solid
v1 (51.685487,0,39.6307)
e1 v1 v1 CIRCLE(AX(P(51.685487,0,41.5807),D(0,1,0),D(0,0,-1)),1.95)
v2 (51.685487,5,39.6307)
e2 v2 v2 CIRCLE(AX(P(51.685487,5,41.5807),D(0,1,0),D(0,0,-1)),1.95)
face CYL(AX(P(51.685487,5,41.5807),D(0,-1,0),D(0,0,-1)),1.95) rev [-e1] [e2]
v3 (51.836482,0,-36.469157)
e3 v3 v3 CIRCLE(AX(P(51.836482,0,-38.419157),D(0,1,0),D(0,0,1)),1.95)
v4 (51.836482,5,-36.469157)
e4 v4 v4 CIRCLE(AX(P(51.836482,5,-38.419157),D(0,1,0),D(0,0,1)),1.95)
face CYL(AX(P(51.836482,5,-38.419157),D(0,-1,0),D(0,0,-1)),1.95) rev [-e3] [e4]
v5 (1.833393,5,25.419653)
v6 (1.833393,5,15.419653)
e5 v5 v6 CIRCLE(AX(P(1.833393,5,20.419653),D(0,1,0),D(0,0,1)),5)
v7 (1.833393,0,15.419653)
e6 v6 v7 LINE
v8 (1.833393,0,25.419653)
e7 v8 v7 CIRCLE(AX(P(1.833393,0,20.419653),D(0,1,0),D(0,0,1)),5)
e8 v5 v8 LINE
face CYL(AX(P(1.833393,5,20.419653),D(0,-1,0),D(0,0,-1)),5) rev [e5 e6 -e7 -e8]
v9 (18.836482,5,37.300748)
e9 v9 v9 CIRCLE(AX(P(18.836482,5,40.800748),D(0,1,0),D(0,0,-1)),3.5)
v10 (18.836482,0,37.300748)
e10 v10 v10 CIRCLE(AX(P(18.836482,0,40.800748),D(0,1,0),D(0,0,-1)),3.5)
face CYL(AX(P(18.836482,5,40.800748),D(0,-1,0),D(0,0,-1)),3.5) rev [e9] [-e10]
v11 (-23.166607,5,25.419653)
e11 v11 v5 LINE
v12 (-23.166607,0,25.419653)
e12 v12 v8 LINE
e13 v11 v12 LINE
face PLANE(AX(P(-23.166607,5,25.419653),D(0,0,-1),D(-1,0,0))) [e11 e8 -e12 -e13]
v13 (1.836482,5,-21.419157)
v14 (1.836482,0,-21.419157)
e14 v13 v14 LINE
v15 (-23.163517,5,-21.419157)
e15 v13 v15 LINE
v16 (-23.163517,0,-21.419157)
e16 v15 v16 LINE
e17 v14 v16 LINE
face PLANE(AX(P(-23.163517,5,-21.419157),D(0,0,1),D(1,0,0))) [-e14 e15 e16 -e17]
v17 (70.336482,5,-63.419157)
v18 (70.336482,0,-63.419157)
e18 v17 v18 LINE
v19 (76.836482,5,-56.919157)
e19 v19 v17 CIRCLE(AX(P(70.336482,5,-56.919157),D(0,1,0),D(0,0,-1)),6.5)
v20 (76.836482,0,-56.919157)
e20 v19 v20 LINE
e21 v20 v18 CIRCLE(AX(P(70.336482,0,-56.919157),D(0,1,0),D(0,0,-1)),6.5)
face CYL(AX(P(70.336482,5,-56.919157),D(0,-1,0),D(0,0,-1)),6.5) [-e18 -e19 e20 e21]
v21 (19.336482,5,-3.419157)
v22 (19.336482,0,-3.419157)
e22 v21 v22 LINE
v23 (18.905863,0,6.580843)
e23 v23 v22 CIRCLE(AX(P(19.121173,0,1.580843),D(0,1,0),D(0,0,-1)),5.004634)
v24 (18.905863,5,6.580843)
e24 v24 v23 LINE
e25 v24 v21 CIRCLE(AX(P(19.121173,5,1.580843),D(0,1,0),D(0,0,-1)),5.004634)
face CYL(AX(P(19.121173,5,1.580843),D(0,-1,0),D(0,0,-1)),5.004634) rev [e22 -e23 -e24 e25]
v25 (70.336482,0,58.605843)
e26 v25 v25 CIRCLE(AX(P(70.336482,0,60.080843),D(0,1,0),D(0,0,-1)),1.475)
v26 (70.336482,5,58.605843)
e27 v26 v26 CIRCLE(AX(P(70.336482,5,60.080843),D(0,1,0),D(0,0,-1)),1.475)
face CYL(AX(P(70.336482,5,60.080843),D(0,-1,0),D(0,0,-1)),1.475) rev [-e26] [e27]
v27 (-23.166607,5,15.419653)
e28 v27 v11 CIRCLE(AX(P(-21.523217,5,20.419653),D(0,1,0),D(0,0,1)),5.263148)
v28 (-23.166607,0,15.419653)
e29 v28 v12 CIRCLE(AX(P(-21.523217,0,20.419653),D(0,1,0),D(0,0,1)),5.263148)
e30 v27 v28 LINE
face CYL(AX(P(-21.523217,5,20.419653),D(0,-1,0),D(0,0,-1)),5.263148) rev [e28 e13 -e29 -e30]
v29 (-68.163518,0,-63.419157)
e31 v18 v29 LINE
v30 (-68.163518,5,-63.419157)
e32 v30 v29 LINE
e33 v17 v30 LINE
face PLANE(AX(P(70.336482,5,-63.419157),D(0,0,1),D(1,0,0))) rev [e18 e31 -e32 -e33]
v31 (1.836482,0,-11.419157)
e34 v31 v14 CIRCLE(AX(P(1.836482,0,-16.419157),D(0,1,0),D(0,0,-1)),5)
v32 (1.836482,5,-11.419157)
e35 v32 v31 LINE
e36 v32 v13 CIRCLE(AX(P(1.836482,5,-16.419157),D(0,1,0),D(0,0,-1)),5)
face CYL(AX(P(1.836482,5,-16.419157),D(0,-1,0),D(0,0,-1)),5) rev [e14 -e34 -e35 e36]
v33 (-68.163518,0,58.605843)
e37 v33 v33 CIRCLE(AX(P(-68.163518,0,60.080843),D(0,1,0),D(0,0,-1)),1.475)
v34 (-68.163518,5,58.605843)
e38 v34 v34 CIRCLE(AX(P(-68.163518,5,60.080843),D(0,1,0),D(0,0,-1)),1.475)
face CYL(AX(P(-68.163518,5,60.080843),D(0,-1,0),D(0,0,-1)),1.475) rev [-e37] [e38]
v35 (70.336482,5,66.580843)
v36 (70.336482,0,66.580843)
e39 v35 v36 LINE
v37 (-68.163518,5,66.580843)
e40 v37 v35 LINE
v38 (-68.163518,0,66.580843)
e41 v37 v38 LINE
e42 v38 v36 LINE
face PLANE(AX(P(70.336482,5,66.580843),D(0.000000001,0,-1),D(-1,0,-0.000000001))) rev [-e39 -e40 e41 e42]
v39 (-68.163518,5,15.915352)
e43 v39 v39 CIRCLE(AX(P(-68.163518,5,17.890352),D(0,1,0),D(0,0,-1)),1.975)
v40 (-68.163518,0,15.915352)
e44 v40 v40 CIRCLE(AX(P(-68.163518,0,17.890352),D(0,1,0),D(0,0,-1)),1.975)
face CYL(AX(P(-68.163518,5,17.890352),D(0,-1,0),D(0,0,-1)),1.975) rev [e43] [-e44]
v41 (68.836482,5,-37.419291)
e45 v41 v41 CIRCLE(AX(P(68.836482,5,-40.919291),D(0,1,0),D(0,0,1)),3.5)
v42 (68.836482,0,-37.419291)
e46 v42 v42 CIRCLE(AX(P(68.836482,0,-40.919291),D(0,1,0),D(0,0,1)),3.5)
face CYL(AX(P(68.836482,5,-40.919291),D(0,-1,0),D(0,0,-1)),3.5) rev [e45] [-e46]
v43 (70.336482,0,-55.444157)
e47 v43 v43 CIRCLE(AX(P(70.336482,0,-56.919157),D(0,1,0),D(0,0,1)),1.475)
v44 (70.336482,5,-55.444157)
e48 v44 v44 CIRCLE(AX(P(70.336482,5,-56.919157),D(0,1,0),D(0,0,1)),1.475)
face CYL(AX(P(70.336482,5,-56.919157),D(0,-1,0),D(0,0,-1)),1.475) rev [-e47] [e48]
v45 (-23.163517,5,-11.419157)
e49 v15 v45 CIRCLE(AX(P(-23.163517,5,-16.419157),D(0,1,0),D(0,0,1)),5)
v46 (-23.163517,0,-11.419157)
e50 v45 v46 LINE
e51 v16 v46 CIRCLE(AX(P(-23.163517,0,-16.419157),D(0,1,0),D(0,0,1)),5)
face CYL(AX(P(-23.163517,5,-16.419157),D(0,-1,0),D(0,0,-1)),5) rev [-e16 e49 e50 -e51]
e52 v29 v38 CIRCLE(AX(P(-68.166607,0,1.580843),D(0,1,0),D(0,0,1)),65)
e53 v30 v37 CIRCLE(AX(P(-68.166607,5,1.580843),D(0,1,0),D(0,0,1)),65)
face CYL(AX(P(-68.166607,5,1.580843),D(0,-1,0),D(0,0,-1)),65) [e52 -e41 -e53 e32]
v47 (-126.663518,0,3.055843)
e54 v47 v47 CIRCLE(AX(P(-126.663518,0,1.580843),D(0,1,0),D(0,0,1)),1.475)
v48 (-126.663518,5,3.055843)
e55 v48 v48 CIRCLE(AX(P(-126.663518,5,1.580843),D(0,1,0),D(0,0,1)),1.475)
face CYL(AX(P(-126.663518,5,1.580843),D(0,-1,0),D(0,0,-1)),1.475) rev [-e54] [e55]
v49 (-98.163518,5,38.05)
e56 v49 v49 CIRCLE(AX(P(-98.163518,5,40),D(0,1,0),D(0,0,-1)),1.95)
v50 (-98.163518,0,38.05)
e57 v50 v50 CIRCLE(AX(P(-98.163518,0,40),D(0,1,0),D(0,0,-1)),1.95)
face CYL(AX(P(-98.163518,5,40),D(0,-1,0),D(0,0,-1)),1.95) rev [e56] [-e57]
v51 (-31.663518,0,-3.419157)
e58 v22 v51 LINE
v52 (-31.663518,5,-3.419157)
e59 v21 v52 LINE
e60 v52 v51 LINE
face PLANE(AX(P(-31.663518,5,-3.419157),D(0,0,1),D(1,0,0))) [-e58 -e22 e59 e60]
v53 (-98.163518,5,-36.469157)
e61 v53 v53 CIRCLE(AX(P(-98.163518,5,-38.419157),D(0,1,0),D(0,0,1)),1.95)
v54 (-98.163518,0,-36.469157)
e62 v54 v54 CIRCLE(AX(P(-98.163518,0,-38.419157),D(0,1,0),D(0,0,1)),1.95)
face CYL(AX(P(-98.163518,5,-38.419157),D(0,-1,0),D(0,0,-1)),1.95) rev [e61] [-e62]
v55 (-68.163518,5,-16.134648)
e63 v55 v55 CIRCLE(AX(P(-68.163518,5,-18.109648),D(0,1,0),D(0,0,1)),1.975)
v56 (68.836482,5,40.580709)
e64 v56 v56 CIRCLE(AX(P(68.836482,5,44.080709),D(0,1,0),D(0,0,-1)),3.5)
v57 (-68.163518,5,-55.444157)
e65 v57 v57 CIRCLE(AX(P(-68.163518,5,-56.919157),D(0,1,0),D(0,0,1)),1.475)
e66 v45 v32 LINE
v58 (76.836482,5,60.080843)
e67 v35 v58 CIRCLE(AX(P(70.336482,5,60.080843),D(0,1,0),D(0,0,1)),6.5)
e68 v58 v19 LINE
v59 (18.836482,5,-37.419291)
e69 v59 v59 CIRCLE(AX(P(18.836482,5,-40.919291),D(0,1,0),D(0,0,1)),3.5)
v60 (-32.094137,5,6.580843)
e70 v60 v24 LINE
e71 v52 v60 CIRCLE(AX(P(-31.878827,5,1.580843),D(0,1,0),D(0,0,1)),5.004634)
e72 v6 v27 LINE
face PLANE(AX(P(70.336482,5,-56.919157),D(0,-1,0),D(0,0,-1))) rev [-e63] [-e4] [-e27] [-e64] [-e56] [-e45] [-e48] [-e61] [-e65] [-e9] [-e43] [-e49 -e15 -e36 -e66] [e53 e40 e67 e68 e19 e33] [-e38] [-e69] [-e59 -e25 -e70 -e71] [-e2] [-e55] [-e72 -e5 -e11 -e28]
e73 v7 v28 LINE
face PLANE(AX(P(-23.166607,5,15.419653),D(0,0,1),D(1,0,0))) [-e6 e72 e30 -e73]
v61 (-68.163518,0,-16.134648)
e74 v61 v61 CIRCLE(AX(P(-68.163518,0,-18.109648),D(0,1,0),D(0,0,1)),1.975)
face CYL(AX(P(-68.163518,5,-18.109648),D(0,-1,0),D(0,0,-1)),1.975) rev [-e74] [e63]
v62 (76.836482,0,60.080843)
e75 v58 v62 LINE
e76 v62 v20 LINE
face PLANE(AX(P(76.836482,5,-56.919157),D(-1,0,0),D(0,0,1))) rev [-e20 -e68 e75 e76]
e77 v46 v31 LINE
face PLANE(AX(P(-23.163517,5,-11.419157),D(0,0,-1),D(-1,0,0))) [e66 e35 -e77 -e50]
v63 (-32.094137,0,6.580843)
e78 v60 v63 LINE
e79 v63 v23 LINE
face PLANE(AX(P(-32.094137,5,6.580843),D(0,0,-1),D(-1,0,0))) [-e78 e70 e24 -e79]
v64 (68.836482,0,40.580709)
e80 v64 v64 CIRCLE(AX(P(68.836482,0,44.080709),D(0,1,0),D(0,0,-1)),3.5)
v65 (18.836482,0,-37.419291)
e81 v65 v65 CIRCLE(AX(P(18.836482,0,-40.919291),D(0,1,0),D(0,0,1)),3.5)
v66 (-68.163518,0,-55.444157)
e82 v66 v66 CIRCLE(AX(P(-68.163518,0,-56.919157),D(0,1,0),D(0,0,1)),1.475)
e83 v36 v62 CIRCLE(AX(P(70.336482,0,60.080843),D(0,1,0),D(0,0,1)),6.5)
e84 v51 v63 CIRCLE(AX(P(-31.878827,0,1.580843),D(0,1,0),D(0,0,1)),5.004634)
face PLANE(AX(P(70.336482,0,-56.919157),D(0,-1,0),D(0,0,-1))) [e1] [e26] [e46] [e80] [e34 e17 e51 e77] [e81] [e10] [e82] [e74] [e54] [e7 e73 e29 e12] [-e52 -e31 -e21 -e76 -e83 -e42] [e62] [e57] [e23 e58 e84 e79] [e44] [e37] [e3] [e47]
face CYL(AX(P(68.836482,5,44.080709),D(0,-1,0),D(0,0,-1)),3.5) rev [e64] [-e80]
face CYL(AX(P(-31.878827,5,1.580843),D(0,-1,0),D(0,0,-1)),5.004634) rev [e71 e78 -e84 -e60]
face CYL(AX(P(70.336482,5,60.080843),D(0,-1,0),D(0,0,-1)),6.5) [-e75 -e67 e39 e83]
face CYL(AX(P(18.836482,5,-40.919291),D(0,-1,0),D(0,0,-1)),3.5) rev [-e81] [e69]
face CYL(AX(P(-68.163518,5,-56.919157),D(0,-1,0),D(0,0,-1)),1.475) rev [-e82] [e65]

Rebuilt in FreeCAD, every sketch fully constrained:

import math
import FreeCAD as App
import Part
import Sketcher
Q = App.Units.Quantity

doc = App.newDocument("Part")
params = doc.addObject("Spreadsheet::Sheet", "Params")
for row, (alias, value) in enumerate([
    ("sketch1_diameter", "7 mm"),
    ("sketch1_radius", "65 mm"),
    ("sketch1_radius2", "5 mm"),
    ("sketch1_diameter2", "3.9 mm"),
    ("sketch1_radius3", "6.5 mm"),
    ("pad1_length", "5 mm"),
], start=1):
    params.set(f"A{row}", alias)
    params.set(f"B{row}", "=" + value)
    params.setAlias(f"B{row}", alias)

body = doc.addObject("PartDesign::Body", "Body")

sketch1 = doc.addObject("Sketcher::SketchObject", "Sketch")
body.addObject(sketch1)
sketch1.AttachmentSupport = (doc.XZ_Plane, [""])
sketch1.MapMode = "FlatFace"
sketch1.addGeometry([
    Part.LineSegment(App.Vector(76.8, 60.1, 0), App.Vector(76.8, -56.9, 0)),
    Part.ArcOfCircle(Part.Circle(App.Vector(70.3, -56.9, 0), App.Vector(0, 0, 1), 6.5), math.radians(-90), math.radians(0)),
    Part.LineSegment(App.Vector(70.3, -63.4, 0), App.Vector(-68.2, -63.4, 0)),
    Part.ArcOfCircle(Part.Circle(App.Vector(-68.2, 1.6, 0), App.Vector(0, 0, 1), 65), math.radians(90), math.radians(270)),
    Part.LineSegment(App.Vector(-68.2, 66.6, 0), App.Vector(70.3, 66.6, 0)),
    Part.ArcOfCircle(Part.Circle(App.Vector(70.3, 60.1, 0), App.Vector(0, 0, 1), 6.5), math.radians(0), math.radians(90)),
    Part.Circle(App.Vector(70.3, 60.1, 0), App.Vector(0, 0, 1), 1.5),
    Part.Circle(App.Vector(68.8, 44.1, 0), App.Vector(0, 0, 1), 3.5),
    Part.Circle(App.Vector(51.7, 41.6, 0), App.Vector(0, 0, 1), 1.9),
    Part.Circle(App.Vector(18.8, 40.8, 0), App.Vector(0, 0, 1), 3.5),
    Part.ArcOfCircle(Part.Circle(App.Vector(-21.5, 20.4, 0), App.Vector(0, 0, 1), 5.3), math.radians(108), math.radians(252)),
    Part.LineSegment(App.Vector(-23.2, 15.4, 0), App.Vector(1.8, 15.4, 0)),
    Part.ArcOfCircle(Part.Circle(App.Vector(1.8, 20.4, 0), App.Vector(0, 0, 1), 5), math.radians(-90), math.radians(90)),
    Part.LineSegment(App.Vector(1.8, 25.4, 0), App.Vector(-23.2, 25.4, 0)),
    Part.Circle(App.Vector(-68.2, 60.1, 0), App.Vector(0, 0, 1), 1.5),
    Part.Circle(App.Vector(-98.2, 40, 0), App.Vector(0, 0, 1), 1.9),
    Part.Circle(App.Vector(-68.2, 17.9, 0), App.Vector(0, 0, 1), 2),
    Part.LineSegment(App.Vector(-31.7, -3.4, 0), App.Vector(19.3, -3.4, 0)),
    Part.ArcOfCircle(Part.Circle(App.Vector(19.1, 1.6, 0), App.Vector(0, 0, 1), 5), math.radians(-88), math.radians(92)),
    Part.LineSegment(App.Vector(18.9, 6.6, 0), App.Vector(-32.1, 6.6, 0)),
    Part.ArcOfCircle(Part.Circle(App.Vector(-31.9, 1.6, 0), App.Vector(0, 0, 1), 5), math.radians(92), math.radians(272)),
    Part.LineSegment(App.Vector(-23.2, -21.4, 0), App.Vector(1.8, -21.4, 0)),
    Part.ArcOfCircle(Part.Circle(App.Vector(1.8, -16.4, 0), App.Vector(0, 0, 1), 5), math.radians(-90), math.radians(90)),
    Part.LineSegment(App.Vector(1.8, -11.4, 0), App.Vector(-23.2, -11.4, 0)),
    Part.ArcOfCircle(Part.Circle(App.Vector(-23.2, -16.4, 0), App.Vector(0, 0, 1), 5), math.radians(90), math.radians(270)),
    Part.Circle(App.Vector(68.8, -40.9, 0), App.Vector(0, 0, 1), 3.5),
    Part.Circle(App.Vector(51.8, -38.4, 0), App.Vector(0, 0, 1), 1.9),
    Part.Circle(App.Vector(70.3, -56.9, 0), App.Vector(0, 0, 1), 1.5),
    Part.Circle(App.Vector(18.8, -40.9, 0), App.Vector(0, 0, 1), 3.5),
    Part.Circle(App.Vector(-68.2, -18.1, 0), App.Vector(0, 0, 1), 2),
    Part.Circle(App.Vector(-126.7, 1.6, 0), App.Vector(0, 0, 1), 1.5),
    Part.Circle(App.Vector(-68.2, -56.9, 0), App.Vector(0, 0, 1), 1.5),
    Part.Circle(App.Vector(-98.2, -38.4, 0), App.Vector(0, 0, 1), 1.9),
], False)
sketch1.addConstraint([
    Sketcher.Constraint("Tangent", 0, 2, 1, 2),
    Sketcher.Constraint("Tangent", 1, 1, 2, 1),
    Sketcher.Constraint("Coincident", 2, 2, 3, 2),
    Sketcher.Constraint("Coincident", 3, 1, 4, 1),
    Sketcher.Constraint("Tangent", 4, 2, 5, 2),
    Sketcher.Constraint("Tangent", 5, 1, 0, 1),
    Sketcher.Constraint("Coincident", 10, 2, 11, 1),
    Sketcher.Constraint("Tangent", 11, 2, 12, 1),
    Sketcher.Constraint("Tangent", 12, 2, 13, 1),
    Sketcher.Constraint("Coincident", 13, 2, 10, 1),
    Sketcher.Constraint("Coincident", 17, 2, 18, 1),
    Sketcher.Constraint("Coincident", 18, 2, 19, 1),
    Sketcher.Constraint("Coincident", 19, 2, 20, 1),
    Sketcher.Constraint("Coincident", 20, 2, 17, 1),
    Sketcher.Constraint("Tangent", 21, 2, 22, 1),
    Sketcher.Constraint("Tangent", 22, 2, 23, 1),
    Sketcher.Constraint("Tangent", 23, 2, 24, 1),
    Sketcher.Constraint("Tangent", 24, 2, 21, 1),
    Sketcher.Constraint("Vertical", 0),
    Sketcher.Constraint("Horizontal", 2),
    Sketcher.Constraint("Horizontal", 4),
    Sketcher.Constraint("Horizontal", 11),
    Sketcher.Constraint("Horizontal", 13),
    Sketcher.Constraint("Horizontal", 17),
    Sketcher.Constraint("Horizontal", 19),
    Sketcher.Constraint("Horizontal", 21),
    Sketcher.Constraint("Horizontal", 23),
    Sketcher.Constraint("Coincident", 6, 3, 5, 3),
    Sketcher.Constraint("Coincident", 27, 3, 1, 3),
    Sketcher.Constraint("Equal", 1, 5),
    Sketcher.Constraint("Equal", 7, 9),
    Sketcher.Constraint("Equal", 6, 14),
    Sketcher.Constraint("Equal", 8, 15),
    Sketcher.Constraint("Equal", 18, 20),
    Sketcher.Constraint("Equal", 12, 22),
    Sketcher.Constraint("Equal", 9, 25),
    Sketcher.Constraint("Equal", 15, 26),
    Sketcher.Constraint("Equal", 14, 27),
    Sketcher.Constraint("Equal", 25, 28),
    Sketcher.Constraint("Equal", 16, 29),
    Sketcher.Constraint("Equal", 27, 30),
    Sketcher.Constraint("Equal", 30, 31),
    Sketcher.Constraint("Equal", 26, 32),
    Sketcher.Constraint("Horizontal", 10, 3, 12, 3),
    Sketcher.Constraint("Horizontal", 6, 3, 14, 3),
    Sketcher.Constraint("Horizontal", 3, 3, 18, 3),
    Sketcher.Constraint("Horizontal", 18, 3, 20, 3),
    Sketcher.Constraint("Horizontal", 25, 3, 28, 3),
    Sketcher.Constraint("Horizontal", 20, 3, 30, 3),
    Sketcher.Constraint("Horizontal", 27, 3, 31, 3),
    Sketcher.Constraint("Horizontal", 26, 3, 32, 3),
    Sketcher.Constraint("Vertical", 14, 3, 16, 3),
    Sketcher.Constraint("Vertical", 7, 3, 25, 3),
    Sketcher.Constraint("Vertical", 9, 3, 28, 3),
    Sketcher.Constraint("Vertical", 16, 3, 29, 3),
    Sketcher.Constraint("Vertical", 29, 3, 31, 3),
    Sketcher.Constraint("Vertical", 15, 3, 32, 3),
    Sketcher.Constraint("Vertical", 31, 3, 2, 2),
    Sketcher.Constraint("Vertical", 2, 2, 3, 1),
    Sketcher.Constraint("Equal", 13, 21),
    Sketcher.Constraint("Diameter", 7, Q("7 mm")),
    Sketcher.Constraint("Radius", 3, Q("65 mm")),
    Sketcher.Constraint("Radius", 12, Q("5 mm")),
    Sketcher.Constraint("Diameter", 8, Q("3.9 mm")),
    Sketcher.Constraint("Radius", 1, Q("6.5 mm")),
    Sketcher.Constraint("Diameter", 6, Q("2.95 mm")),
    Sketcher.Constraint("Diameter", 16, Q("3.95 mm")),
    Sketcher.Constraint("DistanceX", 11, 1, 11, 2, Q("25 mm")),
    Sketcher.Constraint("DistanceX", 17, 1, 17, 2, Q("51 mm")),
    Sketcher.Constraint("DistanceX", 2, 2, 2, 1, Q("138.5 mm")),
    Sketcher.Constraint("DistanceY", -1, 1, 15, 3, Q("40 mm")),
    Sketcher.Constraint("DistanceX", 9, 3, 7, 3, Q("50 mm")),
    Sketcher.Constraint("DistanceX", 3, 3, 12, 3, Q("70 mm")),
    Sketcher.Constraint("DistanceX", 14, 3, 9, 3, Q("87 mm")),
    Sketcher.Constraint("DistanceX", 15, 3, 14, 3, Q("30 mm")),
    Sketcher.Constraint("DistanceY", 22, 3, 18, 3, Q("18 mm")),
    Sketcher.Constraint("DistanceX", 22, 3, 9, 3, Q("17 mm")),
    Sketcher.Constraint("DistanceY", 25, 3, 7, 3, Q("85 mm")),
    Sketcher.Constraint("DistanceX", 26, 3, 25, 3, Q("17 mm")),
    Sketcher.Constraint("DistanceY", 26, 3, 18, 3, Q("40 mm")),
    Sketcher.Constraint("DistanceY", 29, 3, 16, 3, Q("36 mm")),
    Sketcher.Constraint("DistanceY", 17, 2, 18, 3, Q("5 mm")),
    Sketcher.Constraint("DistanceY", 18, 3, 18, 2, Q("5 mm")),
    Sketcher.Constraint("DistanceX", 30, 3, 15, 3, Q("28.5 mm")),
    Sketcher.Constraint("DistanceX", 22, 3, 17, 2, Q("17.5 mm")),
    Sketcher.Constraint("Radius", 10, Q("5.263148 mm")),
    Sketcher.Constraint("Radius", 18, Q("5.004634 mm")),
    Sketcher.Constraint("DistanceY", -1, 1, 8, 3, Q("41.5807 mm")),
    Sketcher.Constraint("DistanceX", 10, 3, 9, 3, Q("40.3597 mm")),
    Sketcher.Constraint("DistanceY", 16, 3, 10, 3, Q("2.529301 mm")),
    Sketcher.Constraint("DistanceY", -1, 1, 7, 3, Q("44.080709 mm")),
    Sketcher.Constraint("DistanceY", -1, 1, 9, 3, Q("40.800748 mm")),
    Sketcher.Constraint("DistanceY", -1, 1, 16, 3, Q("17.890352 mm")),
    Sketcher.Constraint("DistanceY", 3, 3, 10, 3, Q("18.838811 mm")),
    Sketcher.Constraint("DistanceX", -1, 1, 1, 3, Q("70.336482 mm")),
    Sketcher.Constraint("DistanceX", -1, 1, 8, 3, Q("51.685487 mm")),
])
sketch1.setExpression("Constraints[60]", "Params.sketch1_diameter")
sketch1.setExpression("Constraints[61]", "Params.sketch1_radius")
sketch1.setExpression("Constraints[62]", "Params.sketch1_radius2")
sketch1.setExpression("Constraints[63]", "Params.sketch1_diameter2")
sketch1.setExpression("Constraints[64]", "Params.sketch1_radius3")
pad1 = doc.addObject("PartDesign::Pad", "Pad")
body.addObject(pad1)
pad1.Profile = sketch1
pad1.setExpression("Length", "Params.pad1_length")
pad1.Reversed = True

doc.recompute()
